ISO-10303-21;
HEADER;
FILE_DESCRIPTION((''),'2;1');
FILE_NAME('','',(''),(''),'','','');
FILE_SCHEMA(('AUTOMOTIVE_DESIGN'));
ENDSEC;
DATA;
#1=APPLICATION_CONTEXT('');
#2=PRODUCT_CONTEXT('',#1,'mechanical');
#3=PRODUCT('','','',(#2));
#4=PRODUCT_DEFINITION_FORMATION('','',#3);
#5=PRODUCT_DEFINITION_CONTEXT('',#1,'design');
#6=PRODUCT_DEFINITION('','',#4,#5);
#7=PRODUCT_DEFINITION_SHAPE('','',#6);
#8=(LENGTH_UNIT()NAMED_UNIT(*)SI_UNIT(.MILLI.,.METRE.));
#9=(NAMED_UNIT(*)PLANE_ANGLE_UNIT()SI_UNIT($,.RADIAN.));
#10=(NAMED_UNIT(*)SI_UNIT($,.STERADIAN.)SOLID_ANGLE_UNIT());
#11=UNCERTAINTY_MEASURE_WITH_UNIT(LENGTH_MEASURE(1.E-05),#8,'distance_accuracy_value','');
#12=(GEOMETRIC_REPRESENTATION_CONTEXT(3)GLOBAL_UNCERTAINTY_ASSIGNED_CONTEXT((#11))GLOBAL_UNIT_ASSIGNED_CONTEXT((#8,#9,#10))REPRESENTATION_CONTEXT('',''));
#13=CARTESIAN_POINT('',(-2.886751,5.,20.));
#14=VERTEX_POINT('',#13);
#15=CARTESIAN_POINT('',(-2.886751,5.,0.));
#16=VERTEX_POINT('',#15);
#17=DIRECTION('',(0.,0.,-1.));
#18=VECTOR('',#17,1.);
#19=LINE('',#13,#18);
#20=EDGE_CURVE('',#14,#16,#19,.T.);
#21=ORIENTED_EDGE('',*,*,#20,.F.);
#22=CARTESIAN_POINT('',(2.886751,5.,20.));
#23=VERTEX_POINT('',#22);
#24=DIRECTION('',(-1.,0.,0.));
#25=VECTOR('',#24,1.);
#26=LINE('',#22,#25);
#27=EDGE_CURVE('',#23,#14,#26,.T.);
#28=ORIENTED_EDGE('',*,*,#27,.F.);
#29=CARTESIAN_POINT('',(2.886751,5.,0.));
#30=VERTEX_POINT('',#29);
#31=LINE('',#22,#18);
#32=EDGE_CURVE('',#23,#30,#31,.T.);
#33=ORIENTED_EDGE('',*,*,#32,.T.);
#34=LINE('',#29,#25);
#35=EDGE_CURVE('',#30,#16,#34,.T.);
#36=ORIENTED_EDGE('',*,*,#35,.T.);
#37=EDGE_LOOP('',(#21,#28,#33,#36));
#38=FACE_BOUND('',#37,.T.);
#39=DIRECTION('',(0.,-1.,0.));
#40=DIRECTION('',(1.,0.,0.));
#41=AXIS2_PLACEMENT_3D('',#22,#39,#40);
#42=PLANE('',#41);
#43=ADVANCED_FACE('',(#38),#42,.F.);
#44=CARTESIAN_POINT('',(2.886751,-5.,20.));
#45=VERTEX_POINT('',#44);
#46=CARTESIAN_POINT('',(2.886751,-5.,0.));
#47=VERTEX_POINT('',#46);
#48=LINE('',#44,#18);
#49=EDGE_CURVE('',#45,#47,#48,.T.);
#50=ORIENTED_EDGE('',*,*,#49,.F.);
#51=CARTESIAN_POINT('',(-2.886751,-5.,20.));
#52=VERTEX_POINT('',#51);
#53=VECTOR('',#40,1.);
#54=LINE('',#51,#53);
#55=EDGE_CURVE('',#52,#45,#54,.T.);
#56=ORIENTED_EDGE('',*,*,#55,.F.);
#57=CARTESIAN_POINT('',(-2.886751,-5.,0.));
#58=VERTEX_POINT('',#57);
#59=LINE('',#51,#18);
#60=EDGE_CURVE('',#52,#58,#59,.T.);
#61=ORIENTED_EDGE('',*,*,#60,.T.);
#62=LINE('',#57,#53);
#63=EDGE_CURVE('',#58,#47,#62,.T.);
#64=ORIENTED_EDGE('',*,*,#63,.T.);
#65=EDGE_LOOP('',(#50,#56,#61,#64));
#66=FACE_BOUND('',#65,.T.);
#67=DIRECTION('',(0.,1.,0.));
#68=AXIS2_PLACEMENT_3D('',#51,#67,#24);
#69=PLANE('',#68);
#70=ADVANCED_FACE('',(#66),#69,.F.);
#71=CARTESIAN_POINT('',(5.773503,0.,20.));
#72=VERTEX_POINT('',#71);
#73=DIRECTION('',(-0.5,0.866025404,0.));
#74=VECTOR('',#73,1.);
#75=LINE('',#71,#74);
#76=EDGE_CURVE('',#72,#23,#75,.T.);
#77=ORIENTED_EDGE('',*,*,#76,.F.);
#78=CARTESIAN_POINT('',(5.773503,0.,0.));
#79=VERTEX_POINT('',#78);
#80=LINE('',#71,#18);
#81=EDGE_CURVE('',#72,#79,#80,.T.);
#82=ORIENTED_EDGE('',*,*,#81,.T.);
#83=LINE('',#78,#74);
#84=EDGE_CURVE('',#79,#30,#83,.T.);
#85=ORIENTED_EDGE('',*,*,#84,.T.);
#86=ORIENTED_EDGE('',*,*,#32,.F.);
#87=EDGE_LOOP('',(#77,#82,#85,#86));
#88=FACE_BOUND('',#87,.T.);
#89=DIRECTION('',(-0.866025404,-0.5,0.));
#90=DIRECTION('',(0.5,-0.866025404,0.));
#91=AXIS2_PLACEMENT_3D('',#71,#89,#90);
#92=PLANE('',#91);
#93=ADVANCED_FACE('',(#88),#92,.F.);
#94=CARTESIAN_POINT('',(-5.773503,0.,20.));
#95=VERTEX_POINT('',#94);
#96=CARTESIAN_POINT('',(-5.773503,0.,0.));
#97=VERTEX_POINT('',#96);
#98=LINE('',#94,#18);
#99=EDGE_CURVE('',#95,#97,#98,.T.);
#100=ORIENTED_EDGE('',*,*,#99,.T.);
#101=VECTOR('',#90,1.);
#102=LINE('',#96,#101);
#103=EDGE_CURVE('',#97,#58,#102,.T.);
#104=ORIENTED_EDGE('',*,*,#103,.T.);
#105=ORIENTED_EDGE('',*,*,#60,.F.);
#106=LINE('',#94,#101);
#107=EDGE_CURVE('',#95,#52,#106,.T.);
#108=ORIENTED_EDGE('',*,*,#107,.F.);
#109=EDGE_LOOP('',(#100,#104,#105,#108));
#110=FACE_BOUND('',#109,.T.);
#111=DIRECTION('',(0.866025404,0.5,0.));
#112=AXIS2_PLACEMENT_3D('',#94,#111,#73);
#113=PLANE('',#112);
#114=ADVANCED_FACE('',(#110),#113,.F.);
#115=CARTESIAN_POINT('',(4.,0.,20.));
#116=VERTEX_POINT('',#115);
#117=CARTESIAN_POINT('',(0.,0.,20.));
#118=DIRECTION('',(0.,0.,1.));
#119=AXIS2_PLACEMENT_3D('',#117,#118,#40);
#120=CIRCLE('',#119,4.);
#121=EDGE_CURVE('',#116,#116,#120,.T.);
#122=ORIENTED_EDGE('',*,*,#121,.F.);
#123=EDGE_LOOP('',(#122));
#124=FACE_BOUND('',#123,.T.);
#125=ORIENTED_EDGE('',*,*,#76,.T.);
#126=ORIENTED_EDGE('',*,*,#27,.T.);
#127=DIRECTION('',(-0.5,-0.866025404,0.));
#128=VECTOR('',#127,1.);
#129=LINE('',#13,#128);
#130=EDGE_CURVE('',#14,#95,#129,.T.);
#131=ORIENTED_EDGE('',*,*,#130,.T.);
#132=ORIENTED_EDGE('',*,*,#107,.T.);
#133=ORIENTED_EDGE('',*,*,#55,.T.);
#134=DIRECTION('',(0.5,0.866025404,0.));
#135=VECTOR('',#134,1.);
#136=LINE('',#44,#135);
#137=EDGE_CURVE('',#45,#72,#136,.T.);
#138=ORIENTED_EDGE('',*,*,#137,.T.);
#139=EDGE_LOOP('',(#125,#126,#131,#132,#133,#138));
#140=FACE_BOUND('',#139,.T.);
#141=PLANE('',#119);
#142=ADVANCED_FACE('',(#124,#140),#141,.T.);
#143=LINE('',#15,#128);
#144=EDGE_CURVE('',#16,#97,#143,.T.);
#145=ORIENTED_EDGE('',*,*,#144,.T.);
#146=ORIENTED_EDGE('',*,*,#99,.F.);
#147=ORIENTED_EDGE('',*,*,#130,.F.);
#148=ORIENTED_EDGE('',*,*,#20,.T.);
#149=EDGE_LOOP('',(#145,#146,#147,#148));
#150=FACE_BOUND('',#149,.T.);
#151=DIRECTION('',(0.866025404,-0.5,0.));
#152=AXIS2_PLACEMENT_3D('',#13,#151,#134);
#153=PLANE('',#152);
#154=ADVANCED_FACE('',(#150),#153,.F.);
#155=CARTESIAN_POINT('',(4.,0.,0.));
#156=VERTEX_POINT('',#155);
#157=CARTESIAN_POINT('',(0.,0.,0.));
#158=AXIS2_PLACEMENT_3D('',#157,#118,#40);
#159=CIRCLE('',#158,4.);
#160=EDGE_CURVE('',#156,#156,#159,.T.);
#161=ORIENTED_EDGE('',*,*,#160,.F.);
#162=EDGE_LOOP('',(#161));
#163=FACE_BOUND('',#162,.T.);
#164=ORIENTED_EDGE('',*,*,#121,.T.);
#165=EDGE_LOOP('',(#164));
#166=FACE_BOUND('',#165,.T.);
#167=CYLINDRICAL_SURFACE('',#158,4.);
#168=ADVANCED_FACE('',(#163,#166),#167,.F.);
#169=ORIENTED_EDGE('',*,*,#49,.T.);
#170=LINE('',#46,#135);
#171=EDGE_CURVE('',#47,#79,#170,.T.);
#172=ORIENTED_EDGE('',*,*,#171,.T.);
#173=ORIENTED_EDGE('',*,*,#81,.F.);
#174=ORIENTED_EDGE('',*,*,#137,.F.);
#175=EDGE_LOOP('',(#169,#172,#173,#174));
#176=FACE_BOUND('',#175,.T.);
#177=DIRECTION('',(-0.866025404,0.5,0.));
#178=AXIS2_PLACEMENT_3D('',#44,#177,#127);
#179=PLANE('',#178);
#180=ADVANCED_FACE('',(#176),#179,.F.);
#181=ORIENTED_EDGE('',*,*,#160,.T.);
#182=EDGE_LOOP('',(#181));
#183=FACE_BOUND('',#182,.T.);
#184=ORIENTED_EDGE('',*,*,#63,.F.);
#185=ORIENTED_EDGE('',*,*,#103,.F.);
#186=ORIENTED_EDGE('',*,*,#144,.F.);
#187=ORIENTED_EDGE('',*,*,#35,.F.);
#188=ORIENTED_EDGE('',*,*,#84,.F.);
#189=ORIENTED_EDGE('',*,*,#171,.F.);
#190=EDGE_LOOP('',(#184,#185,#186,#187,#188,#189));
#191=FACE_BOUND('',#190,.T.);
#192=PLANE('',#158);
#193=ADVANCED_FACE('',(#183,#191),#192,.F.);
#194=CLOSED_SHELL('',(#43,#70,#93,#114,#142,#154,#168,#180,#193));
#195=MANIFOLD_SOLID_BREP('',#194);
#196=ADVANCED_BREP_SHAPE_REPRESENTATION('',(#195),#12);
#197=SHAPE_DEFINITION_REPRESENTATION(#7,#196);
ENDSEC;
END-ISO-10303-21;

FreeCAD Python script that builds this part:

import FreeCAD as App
import Part
import Sketcher
from FreeCAD import Vector
Q = App.Units.Quantity


def add_polygon(sketch, points):
    """Adds a closed chain of lines whose ends are joined by coincident constraints."""
    first, n = sketch.GeometryCount, len(points)
    for a, b in zip(points, points[1:] + points[:1]):
        sketch.addGeometry(Part.LineSegment(App.Vector(*a, 0), App.Vector(*b, 0)), False)
    for i in range(n):
        sketch.addConstraint(Sketcher.Constraint("Coincident", first + i, 2, first + (i + 1) % n, 1))

doc = App.newDocument("Part")
body = doc.addObject("PartDesign::Body", "Body")

# Sketch on XY plane
sketch1 = body.newObject("Sketcher::SketchObject", "Sketch")
sketch1.AttachmentSupport = (doc.getObject("XY_Plane"), [""])
sketch1.MapMode = "FlatFace"
add_polygon(sketch1, [(5.773503, 0), (2.886751, 5), (-2.886751, 5), (-5.773503, 0), (-2.886751, -5), (2.886751, -5)])  # lines 0-5
sketch1.addConstraint([
    Sketcher.Constraint("Horizontal", 1),
    Sketcher.Constraint("Horizontal", 4),
    Sketcher.Constraint("Symmetric", 0, 2, 3, 2, -1, 1),
    Sketcher.Constraint("Symmetric", 2, 2, 5, 2, -1, 1),
    Sketcher.Constraint("PointOnObject", 2, 2, -1),
    Sketcher.Constraint("Parallel", 2, 5),
    Sketcher.Constraint("Vertical", 1, 2, 3, 2),
    Sketcher.Constraint("Angle", 0, Q("120 deg")),
    Sketcher.Constraint("DistanceY", -1, 1, 0, 2, 5.0),
    Sketcher.Constraint("DistanceX", 1, 2, 1, 1, 5.773503),
])
pad1 = body.newObject("PartDesign::Pad", "Pad")
pad1.Profile = sketch1
pad1.Length = 20

# Sketch on XY plane
sketch2 = body.newObject("Sketcher::SketchObject", "Sketch001")
sketch2.AttachmentSupport = (doc.getObject("XY_Plane"), [""])
sketch2.MapMode = "FlatFace"
sketch2.AttachmentOffset = App.Placement(Vector(0, 0, 20), App.Rotation())
sketch2.addGeometry(Part.Circle(Vector(0, 0, 0), Vector(0, 0, 1), 4), False)
sketch2.addConstraint([
    Sketcher.Constraint("Coincident", 0, 3, -1, 1),
    Sketcher.Constraint("Diameter", 0, 8.0),
])
pocket1 = body.newObject("PartDesign::Pocket", "Pocket")
pocket1.Profile = sketch2
pocket1.Length = 20

doc.recompute()
